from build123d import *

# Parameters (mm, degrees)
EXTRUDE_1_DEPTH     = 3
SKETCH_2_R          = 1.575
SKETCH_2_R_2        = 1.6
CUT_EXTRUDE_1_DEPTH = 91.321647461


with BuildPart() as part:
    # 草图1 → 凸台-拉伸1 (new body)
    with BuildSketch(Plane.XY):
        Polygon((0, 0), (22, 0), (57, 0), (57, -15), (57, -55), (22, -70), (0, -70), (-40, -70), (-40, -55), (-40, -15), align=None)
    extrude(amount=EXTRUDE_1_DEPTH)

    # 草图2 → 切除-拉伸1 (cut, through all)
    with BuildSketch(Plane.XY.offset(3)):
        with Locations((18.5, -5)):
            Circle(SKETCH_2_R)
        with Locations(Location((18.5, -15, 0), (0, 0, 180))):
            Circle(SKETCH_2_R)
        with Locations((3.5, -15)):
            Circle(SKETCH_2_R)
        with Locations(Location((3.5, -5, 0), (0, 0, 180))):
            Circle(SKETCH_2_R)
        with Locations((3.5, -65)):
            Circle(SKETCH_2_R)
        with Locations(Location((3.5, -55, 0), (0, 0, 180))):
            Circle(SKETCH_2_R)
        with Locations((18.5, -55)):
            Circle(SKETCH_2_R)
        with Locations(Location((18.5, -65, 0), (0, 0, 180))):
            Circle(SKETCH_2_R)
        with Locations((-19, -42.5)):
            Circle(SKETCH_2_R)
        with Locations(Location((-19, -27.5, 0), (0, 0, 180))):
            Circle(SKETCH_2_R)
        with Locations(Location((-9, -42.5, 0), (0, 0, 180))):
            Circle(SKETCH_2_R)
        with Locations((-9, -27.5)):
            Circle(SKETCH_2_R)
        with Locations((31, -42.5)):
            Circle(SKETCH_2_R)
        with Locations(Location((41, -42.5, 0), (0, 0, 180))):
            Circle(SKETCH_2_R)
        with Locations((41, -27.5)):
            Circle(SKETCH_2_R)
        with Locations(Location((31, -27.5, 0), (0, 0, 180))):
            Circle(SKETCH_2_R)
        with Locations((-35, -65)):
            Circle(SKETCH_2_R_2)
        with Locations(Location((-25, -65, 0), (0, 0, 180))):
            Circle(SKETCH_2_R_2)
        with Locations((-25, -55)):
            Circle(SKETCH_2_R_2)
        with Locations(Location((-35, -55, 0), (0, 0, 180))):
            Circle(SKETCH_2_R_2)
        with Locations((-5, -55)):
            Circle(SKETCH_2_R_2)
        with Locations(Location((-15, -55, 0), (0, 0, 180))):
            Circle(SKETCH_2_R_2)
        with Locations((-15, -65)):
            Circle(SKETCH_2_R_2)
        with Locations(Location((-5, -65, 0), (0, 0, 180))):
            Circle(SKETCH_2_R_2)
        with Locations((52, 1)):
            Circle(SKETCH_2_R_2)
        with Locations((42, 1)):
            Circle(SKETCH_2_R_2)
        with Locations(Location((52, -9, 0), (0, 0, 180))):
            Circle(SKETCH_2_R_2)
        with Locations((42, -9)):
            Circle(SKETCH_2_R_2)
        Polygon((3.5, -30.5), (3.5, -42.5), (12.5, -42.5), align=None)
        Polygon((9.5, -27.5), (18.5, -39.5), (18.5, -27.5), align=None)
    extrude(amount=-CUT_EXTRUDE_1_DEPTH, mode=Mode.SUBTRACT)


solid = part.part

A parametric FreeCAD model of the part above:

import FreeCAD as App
import Part
import Sketcher

V = App.Vector

doc = App.newDocument("Part")
body = doc.addObject("PartDesign::Body", "Body")

# Sketch on XY plane
sketch1 = body.newObject("Sketcher::SketchObject", "Sketch")
sketch1.AttachmentSupport = (doc.getObject("XY_Plane"), [""])
sketch1.MapMode = "FlatFace"
sketch1.addGeometry([
    Part.LineSegment(V(57, 0, 0), V(0, 0, 0)),  # 0
    Part.LineSegment(V(0, 0, 0), V(-40, -15, 0)),  # 1
    Part.LineSegment(V(-40, -15, 0), V(-40, -70, 0)),  # 2
    Part.LineSegment(V(-40, -70, 0), V(22, -70, 0)),  # 3
    Part.LineSegment(V(22, -70, 0), V(57, -55, 0)),  # 4
    Part.LineSegment(V(57, -55, 0), V(57, 0, 0)),  # 5
], False)
sketch1.addConstraint([
    Sketcher.Constraint("Coincident", 0, 2, 1, 1),
    Sketcher.Constraint("Coincident", 1, 2, 2, 1),
    Sketcher.Constraint("Coincident", 2, 2, 3, 1),
    Sketcher.Constraint("Coincident", 3, 2, 4, 1),
    Sketcher.Constraint("Coincident", 4, 2, 5, 1),
    Sketcher.Constraint("Coincident", 5, 2, 0, 1),
    Sketcher.Constraint("Horizontal", 0),
    Sketcher.Constraint("Vertical", 2),
    Sketcher.Constraint("Horizontal", 3),
    Sketcher.Constraint("Vertical", 5),
    Sketcher.Constraint("Coincident", 0, 2, -1, 1),
    Sketcher.Constraint("Equal", 2, 5),
    Sketcher.Constraint("DistanceX", 0, 2, 0, 1, 57.0),
    Sketcher.Constraint("DistanceX", 3, 1, 3, 2, 62.0),
    Sketcher.Constraint("DistanceY", 2, 2, 2, 1, 55.0),
    Sketcher.Constraint("DistanceX", 1, 2, -1, 1, 40.0),
    Sketcher.Constraint("DistanceY", 1, 2, -1, 1, 15.0),
])
pad1 = body.newObject("PartDesign::Pad", "Pad")
pad1.Profile = sketch1
pad1.Length = 3

# Sketch on XY plane
sketch2 = body.newObject("Sketcher::SketchObject", "Sketch001")
sketch2.AttachmentSupport = (doc.getObject("XY_Plane"), [""])
sketch2.MapMode = "FlatFace"
sketch2.AttachmentOffset = App.Placement(V(0, 0, 3), App.Rotation())
sketch2.addGeometry([
    Part.Circle(V(18.5, -5, 0), V(0, 0, 1), 1.6),  # 0
    Part.Circle(V(18.5, -15, 0), V(0, 0, 1), 1.6),  # 1
    Part.Circle(V(3.5, -15, 0), V(0, 0, 1), 1.6),  # 2
    Part.Circle(V(3.5, -5, 0), V(0, 0, 1), 1.6),  # 3
    Part.Circle(V(3.5, -65, 0), V(0, 0, 1), 1.6),  # 4
    Part.Circle(V(3.5, -55, 0), V(0, 0, 1), 1.6),  # 5
    Part.Circle(V(18.5, -55, 0), V(0, 0, 1), 1.6),  # 6
    Part.Circle(V(18.5, -65, 0), V(0, 0, 1), 1.6),  # 7
    Part.Circle(V(-19, -42.5, 0), V(0, 0, 1), 1.6),  # 8
    Part.Circle(V(-19, -27.5, 0), V(0, 0, 1), 1.6),  # 9
    Part.Circle(V(-9, -42.5, 0), V(0, 0, 1), 1.6),  # 10
    Part.Circle(V(-9, -27.5, 0), V(0, 0, 1), 1.6),  # 11
    Part.Circle(V(31, -42.5, 0), V(0, 0, 1), 1.6),  # 12
    Part.Circle(V(41, -42.5, 0), V(0, 0, 1), 1.6),  # 13
    Part.Circle(V(41, -27.5, 0), V(0, 0, 1), 1.6),  # 14
    Part.Circle(V(31, -27.5, 0), V(0, 0, 1), 1.6),  # 15
    Part.Circle(V(-35, -65, 0), V(0, 0, 1), 1.6),  # 16
    Part.Circle(V(-25, -65, 0), V(0, 0, 1), 1.6),  # 17
    Part.Circle(V(-25, -55, 0), V(0, 0, 1), 1.6),  # 18
    Part.Circle(V(-35, -55, 0), V(0, 0, 1), 1.6),  # 19
    Part.Circle(V(-5, -55, 0), V(0, 0, 1), 1.6),  # 20
    Part.Circle(V(-15, -55, 0), V(0, 0, 1), 1.6),  # 21
    Part.Circle(V(-15, -65, 0), V(0, 0, 1), 1.6),  # 22
    Part.Circle(V(-5, -65, 0), V(0, 0, 1), 1.6),  # 23
    Part.Circle(V(52, 1, 0), V(0, 0, 1), 1.6),  # 24
    Part.Circle(V(42, 1, 0), V(0, 0, 1), 1.6),  # 25
    Part.Circle(V(52, -9, 0), V(0, 0, 1), 1.6),  # 26
    Part.Circle(V(42, -9, 0), V(0, 0, 1), 1.6),  # 27
    Part.LineSegment(V(3.5, -30.5, 0), V(3.5, -42.5, 0)),  # 28
    Part.LineSegment(V(3.5, -42.5, 0), V(12.5, -42.5, 0)),  # 29
    Part.LineSegment(V(12.5, -42.5, 0), V(3.5, -30.5, 0)),  # 30
    Part.LineSegment(V(9.5, -27.5, 0), V(18.5, -39.5, 0)),  # 31
    Part.LineSegment(V(18.5, -39.5, 0), V(18.5, -27.5, 0)),  # 32
    Part.LineSegment(V(18.5, -27.5, 0), V(9.5, -27.5, 0)),  # 33
], False)
sketch2.addConstraint([
    Sketcher.Constraint("Coincident", 28, 2, 29, 1),
    Sketcher.Constraint("Coincident", 29, 2, 30, 1),
    Sketcher.Constraint("Coincident", 30, 2, 28, 1),
    Sketcher.Constraint("Coincident", 31, 2, 32, 1),
    Sketcher.Constraint("Coincident", 32, 2, 33, 1),
    Sketcher.Constraint("Coincident", 33, 2, 31, 1),
    Sketcher.Constraint("Vertical", 28),
    Sketcher.Constraint("Horizontal", 29),
    Sketcher.Constraint("Vertical", 32),
    Sketcher.Constraint("Horizontal", 33),
    Sketcher.Constraint("Equal", 0, 1),
    Sketcher.Constraint("Equal", 1, 2),
    Sketcher.Constraint("Equal", 2, 3),
    Sketcher.Constraint("Equal", 3, 4),
    Sketcher.Constraint("Equal", 4, 5),
    Sketcher.Constraint("Equal", 5, 6),
    Sketcher.Constraint("Equal", 6, 7),
    Sketcher.Constraint("Equal", 7, 8),
    Sketcher.Constraint("Equal", 8, 9),
    Sketcher.Constraint("Equal", 9, 10),
    Sketcher.Constraint("Equal", 10, 11),
    Sketcher.Constraint("Equal", 11, 12),
    Sketcher.Constraint("Equal", 12, 13),
    Sketcher.Constraint("Equal", 13, 14),
    Sketcher.Constraint("Equal", 14, 15),
    Sketcher.Constraint("Equal", 16, 17),
    Sketcher.Constraint("Equal", 17, 18),
    Sketcher.Constraint("Equal", 18, 19),
    Sketcher.Constraint("Equal", 19, 20),
    Sketcher.Constraint("Equal", 20, 21),
    Sketcher.Constraint("Equal", 21, 22),
    Sketcher.Constraint("Equal", 22, 23),
    Sketcher.Constraint("Equal", 23, 24),
    Sketcher.Constraint("Equal", 24, 25),
    Sketcher.Constraint("Equal", 25, 26),
    Sketcher.Constraint("Equal", 26, 27),
    Sketcher.Constraint("Parallel", 30, 31),
    Sketcher.Constraint("Horizontal", 1, 3, 2, 3),
    Sketcher.Constraint("Horizontal", 0, 3, 3, 3),
    Sketcher.Constraint("Horizontal", 5, 3, 6, 3),
    Sketcher.Constraint("Horizontal", 4, 3, 7, 3),
    Sketcher.Constraint("Horizontal", 8, 3, 10, 3),
    Sketcher.Constraint("Horizontal", 9, 3, 11, 3),
    Sketcher.Constraint("Horizontal", 10, 3, 12, 3),
    Sketcher.Constraint("Horizontal", 12, 3, 13, 3),
    Sketcher.Constraint("Horizontal", 11, 3, 14, 3),
    Sketcher.Constraint("Horizontal", 14, 3, 15, 3),
    Sketcher.Constraint("Horizontal", 7, 3, 16, 3),
    Sketcher.Constraint("Horizontal", 16, 3, 17, 3),
    Sketcher.Constraint("Horizontal", 6, 3, 18, 3),
    Sketcher.Constraint("Horizontal", 18, 3, 19, 3),
    Sketcher.Constraint("Horizontal", 19, 3, 20, 3),
    Sketcher.Constraint("Horizontal", 20, 3, 21, 3),
    Sketcher.Constraint("Horizontal", 17, 3, 22, 3),
    Sketcher.Constraint("Horizontal", 22, 3, 23, 3),
    Sketcher.Constraint("Horizontal", 24, 3, 25, 3),
    Sketcher.Constraint("Horizontal", 26, 3, 27, 3),
    Sketcher.Constraint("Horizontal", 13, 3, 28, 2),
    Sketcher.Constraint("Horizontal", 15, 3, 32, 2),
    Sketcher.Constraint("Vertical", 0, 3, 1, 3),
    Sketcher.Constraint("Vertical", 2, 3, 3, 3),
    Sketcher.Constraint("Vertical", 3, 3, 4, 3),
    Sketcher.Constraint("Vertical", 4, 3, 5, 3),
    Sketcher.Constraint("Vertical", 1, 3, 6, 3),
    Sketcher.Constraint("Vertical", 6, 3, 7, 3),
    Sketcher.Constraint("Vertical", 8, 3, 9, 3),
    Sketcher.Constraint("Vertical", 10, 3, 11, 3),
    Sketcher.Constraint("Vertical", 13, 3, 14, 3),
    Sketcher.Constraint("Vertical", 12, 3, 15, 3),
    Sketcher.Constraint("Vertical", 17, 3, 18, 3),
    Sketcher.Constraint("Vertical", 16, 3, 19, 3),
    Sketcher.Constraint("Vertical", 21, 3, 22, 3),
    Sketcher.Constraint("Vertical", 20, 3, 23, 3),
    Sketcher.Constraint("Vertical", 24, 3, 26, 3),
    Sketcher.Constraint("Vertical", 25, 3, 27, 3),
    Sketcher.Constraint("Vertical", 5, 3, 28, 2),
    Sketcher.Constraint("Vertical", 7, 3, 31, 2),
    Sketcher.Constraint("Equal", 29, 33),
    Sketcher.Constraint("Diameter", 16, 3.2),
    Sketcher.Constraint("Diameter", 0, 3.15),
    Sketcher.Constraint("DistanceX", 29, 1, 29, 2, 9.0),
    Sketcher.Constraint("DistanceY", 28, 2, 28, 1, 12.0),
    Sketcher.Constraint("DistanceY", 0, 3, -1, 1, 5.0),
    Sketcher.Constraint("DistanceY", 1, 3, -1, 1, 15.0),
    Sketcher.Constraint("DistanceY", 4, 3, -1, 1, 65.0),
    Sketcher.Constraint("DistanceY", 5, 3, -1, 1, 55.0),
    Sketcher.Constraint("DistanceX", 8, 3, -1, 1, 19.0),
    Sketcher.Constraint("DistanceX", 10, 3, -1, 1, 9.0),
    Sketcher.Constraint("DistanceX", -1, 1, 12, 3, 31.0),
    Sketcher.Constraint("DistanceX", -1, 1, 13, 3, 41.0),
    Sketcher.Constraint("DistanceX", 16, 3, -1, 1, 35.0),
    Sketcher.Constraint("DistanceX", 17, 3, -1, 1, 25.0),
    Sketcher.Constraint("DistanceX", 20, 3, -1, 1, 5.0),
    Sketcher.Constraint("DistanceX", 21, 3, -1, 1, 15.0),
    Sketcher.Constraint("DistanceX", -1, 1, 24, 3, 52.0),
    Sketcher.Constraint("DistanceY", -1, 1, 24, 3, 1.0),
    Sketcher.Constraint("DistanceX", -1, 1, 25, 3, 42.0),
    Sketcher.Constraint("DistanceY", 26, 3, -1, 1, 9.0),
    Sketcher.Constraint("DistanceX", 2, 3, 1, 3, 15.0),
    Sketcher.Constraint("DistanceY", 8, 3, 9, 3, 15.0),
    Sketcher.Constraint("DistanceX", -1, 1, 0, 3, 18.5),
    Sketcher.Constraint("DistanceY", 8, 3, -1, 1, 42.5),
])
pocket1 = body.newObject("PartDesign::Pocket", "Pocket")
pocket1.Profile = sketch2
pocket1.Type = "ThroughAll"

doc.recompute()
